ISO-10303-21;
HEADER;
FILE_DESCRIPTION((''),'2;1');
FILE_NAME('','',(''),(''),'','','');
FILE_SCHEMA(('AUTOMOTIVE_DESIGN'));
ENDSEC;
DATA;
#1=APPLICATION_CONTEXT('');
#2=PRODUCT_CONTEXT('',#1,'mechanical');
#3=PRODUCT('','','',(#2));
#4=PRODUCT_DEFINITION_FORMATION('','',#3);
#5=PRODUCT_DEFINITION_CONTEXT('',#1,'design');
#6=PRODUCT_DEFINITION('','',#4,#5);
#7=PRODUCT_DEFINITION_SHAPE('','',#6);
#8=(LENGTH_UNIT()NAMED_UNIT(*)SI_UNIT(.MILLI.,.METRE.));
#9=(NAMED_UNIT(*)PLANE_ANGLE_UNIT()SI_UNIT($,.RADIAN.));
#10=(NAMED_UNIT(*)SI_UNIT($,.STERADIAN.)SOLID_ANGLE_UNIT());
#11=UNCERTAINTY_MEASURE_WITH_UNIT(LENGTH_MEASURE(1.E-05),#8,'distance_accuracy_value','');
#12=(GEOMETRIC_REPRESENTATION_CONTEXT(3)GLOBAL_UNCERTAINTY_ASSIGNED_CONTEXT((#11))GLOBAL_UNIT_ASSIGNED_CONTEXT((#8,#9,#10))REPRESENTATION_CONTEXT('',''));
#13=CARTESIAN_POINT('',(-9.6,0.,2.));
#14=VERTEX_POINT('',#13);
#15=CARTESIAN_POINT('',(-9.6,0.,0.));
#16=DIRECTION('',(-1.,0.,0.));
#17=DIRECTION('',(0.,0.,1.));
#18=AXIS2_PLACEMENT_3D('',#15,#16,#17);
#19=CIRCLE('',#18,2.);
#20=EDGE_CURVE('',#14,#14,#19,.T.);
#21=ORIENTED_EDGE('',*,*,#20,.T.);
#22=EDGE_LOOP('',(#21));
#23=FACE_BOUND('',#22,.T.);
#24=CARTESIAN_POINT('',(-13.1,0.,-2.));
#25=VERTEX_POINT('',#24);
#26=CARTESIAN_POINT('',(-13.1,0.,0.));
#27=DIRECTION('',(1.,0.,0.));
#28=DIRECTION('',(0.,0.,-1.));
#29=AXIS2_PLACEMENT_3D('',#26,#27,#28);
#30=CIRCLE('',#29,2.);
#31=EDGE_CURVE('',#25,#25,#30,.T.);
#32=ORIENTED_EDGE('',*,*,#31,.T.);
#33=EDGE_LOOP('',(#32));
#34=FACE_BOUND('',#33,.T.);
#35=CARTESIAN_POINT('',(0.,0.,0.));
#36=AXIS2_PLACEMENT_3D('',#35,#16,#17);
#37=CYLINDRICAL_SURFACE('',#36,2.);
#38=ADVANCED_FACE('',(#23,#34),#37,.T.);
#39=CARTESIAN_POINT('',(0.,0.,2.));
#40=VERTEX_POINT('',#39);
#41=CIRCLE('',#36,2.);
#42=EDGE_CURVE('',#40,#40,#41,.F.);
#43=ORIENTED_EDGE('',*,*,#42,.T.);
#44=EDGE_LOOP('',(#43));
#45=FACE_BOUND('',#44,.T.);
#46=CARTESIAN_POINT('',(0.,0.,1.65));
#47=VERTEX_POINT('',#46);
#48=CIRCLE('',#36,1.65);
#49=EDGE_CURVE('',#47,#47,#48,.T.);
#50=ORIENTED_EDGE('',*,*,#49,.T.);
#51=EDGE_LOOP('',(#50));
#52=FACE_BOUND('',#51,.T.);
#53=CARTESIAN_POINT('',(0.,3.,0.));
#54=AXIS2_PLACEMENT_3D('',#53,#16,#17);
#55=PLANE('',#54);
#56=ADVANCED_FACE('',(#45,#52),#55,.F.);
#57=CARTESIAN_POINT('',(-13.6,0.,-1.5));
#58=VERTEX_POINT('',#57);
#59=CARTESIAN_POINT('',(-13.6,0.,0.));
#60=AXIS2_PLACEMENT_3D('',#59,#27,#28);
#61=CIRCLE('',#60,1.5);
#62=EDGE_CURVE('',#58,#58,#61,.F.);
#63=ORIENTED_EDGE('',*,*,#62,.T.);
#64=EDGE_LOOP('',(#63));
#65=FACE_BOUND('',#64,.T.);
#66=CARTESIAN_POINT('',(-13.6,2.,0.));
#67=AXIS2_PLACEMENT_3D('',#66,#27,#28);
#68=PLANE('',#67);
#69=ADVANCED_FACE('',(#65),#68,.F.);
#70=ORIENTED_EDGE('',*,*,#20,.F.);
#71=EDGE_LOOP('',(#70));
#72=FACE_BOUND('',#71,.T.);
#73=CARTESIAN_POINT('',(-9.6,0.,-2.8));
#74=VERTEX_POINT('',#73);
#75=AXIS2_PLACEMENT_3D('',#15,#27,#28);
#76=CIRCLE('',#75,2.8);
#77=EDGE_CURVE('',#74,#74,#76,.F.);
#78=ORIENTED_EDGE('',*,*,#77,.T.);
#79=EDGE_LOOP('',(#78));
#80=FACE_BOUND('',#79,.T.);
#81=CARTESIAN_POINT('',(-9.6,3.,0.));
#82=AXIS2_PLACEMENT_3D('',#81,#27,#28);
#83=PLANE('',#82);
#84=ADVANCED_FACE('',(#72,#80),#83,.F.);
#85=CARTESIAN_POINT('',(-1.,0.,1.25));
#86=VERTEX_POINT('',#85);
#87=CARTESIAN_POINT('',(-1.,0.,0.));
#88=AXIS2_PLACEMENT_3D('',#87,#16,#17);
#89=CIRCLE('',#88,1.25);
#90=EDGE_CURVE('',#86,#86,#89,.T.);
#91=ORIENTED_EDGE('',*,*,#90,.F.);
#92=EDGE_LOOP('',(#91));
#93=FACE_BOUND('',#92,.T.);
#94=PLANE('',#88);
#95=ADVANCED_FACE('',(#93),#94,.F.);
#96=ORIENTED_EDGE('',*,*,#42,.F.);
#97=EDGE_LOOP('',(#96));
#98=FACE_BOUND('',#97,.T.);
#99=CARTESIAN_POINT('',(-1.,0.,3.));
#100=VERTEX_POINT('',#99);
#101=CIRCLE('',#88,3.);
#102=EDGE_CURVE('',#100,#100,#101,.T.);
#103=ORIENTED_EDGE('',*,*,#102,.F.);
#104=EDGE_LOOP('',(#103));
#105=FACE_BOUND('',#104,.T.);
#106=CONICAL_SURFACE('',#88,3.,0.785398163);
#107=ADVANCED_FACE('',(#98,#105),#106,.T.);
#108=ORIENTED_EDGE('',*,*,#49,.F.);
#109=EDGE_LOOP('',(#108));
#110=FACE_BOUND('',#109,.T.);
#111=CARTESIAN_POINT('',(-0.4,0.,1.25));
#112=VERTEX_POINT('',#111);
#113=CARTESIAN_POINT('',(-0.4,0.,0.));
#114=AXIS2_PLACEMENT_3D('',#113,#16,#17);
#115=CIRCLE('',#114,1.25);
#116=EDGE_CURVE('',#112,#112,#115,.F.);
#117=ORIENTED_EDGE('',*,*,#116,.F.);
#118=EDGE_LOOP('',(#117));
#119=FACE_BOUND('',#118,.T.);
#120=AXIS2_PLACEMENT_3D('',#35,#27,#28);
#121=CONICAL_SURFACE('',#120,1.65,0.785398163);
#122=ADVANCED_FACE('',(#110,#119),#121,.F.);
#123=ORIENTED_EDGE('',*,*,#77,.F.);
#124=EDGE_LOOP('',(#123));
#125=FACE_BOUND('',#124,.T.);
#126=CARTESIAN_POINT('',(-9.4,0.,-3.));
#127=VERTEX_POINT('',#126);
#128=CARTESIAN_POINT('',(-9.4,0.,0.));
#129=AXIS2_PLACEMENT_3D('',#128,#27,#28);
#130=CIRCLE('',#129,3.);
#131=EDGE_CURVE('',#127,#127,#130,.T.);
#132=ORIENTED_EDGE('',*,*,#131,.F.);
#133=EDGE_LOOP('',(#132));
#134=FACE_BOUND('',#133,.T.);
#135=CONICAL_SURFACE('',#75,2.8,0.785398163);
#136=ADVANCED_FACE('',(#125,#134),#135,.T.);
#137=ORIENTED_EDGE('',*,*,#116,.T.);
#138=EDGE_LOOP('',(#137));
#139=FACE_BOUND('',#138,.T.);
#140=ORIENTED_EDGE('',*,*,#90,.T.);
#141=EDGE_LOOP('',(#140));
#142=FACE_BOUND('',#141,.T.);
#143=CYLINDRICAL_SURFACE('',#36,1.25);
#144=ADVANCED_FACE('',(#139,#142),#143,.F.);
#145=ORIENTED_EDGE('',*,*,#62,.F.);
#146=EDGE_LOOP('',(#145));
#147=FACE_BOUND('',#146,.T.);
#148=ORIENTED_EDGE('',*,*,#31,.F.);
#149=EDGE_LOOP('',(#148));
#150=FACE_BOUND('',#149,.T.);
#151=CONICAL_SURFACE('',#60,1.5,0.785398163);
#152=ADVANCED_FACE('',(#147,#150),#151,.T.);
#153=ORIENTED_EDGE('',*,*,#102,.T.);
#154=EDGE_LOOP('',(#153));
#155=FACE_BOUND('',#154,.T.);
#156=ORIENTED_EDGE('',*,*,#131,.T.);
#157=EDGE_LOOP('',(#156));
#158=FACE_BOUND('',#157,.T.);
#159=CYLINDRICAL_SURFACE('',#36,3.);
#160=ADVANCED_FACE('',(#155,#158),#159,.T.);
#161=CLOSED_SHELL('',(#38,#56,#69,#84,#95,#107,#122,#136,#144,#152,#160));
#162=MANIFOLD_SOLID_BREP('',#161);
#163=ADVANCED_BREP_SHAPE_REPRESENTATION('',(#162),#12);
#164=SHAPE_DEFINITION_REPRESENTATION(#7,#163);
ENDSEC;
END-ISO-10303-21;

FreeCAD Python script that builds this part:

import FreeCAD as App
import Part
import Sketcher
from FreeCAD import Vector


def edges_at(feature, points):
    """Names of the edges that pass closest to the given points."""
    edges = feature.Shape.Edges
    near = lambda p: min(range(len(edges)), key=lambda i: edges[i].distToShape(Part.Vertex(*p))[0])
    return sorted({f"Edge{near(p) + 1}" for p in points})


def add_polygon(sketch, points):
    """Adds a closed chain of lines whose ends are joined by coincident constraints."""
    first, n = sketch.GeometryCount, len(points)
    for a, b in zip(points, points[1:] + points[:1]):
        sketch.addGeometry(Part.LineSegment(App.Vector(*a, 0), App.Vector(*b, 0)), False)
    for i in range(n):
        sketch.addConstraint(Sketcher.Constraint("Coincident", first + i, 2, first + (i + 1) % n, 1))

doc = App.newDocument("Part")
body = doc.addObject("PartDesign::Body", "Body")

sketch1 = body.newObject("Sketcher::SketchObject", "Sketch")
sketch1.AttachmentSupport = (doc.getObject("XY_Plane"), [""])
sketch1.MapMode = "FlatFace"
add_polygon(sketch1, [(-1, 0), (-1, 1.2), (0, 1.2), (0, 3), (-9.6, 3), (-9.6, 2), (-13.6, 2), (-13.6, 0)])
sketch1.addConstraint(Sketcher.Constraint("Vertical", 0))
sketch1.addConstraint(Sketcher.Constraint("Horizontal", 1))
sketch1.addConstraint(Sketcher.Constraint("Vertical", 2))
sketch1.addConstraint(Sketcher.Constraint("Horizontal", 3))
sketch1.addConstraint(Sketcher.Constraint("Vertical", 4))
sketch1.addConstraint(Sketcher.Constraint("Horizontal", 5))
sketch1.addConstraint(Sketcher.Constraint("Vertical", 6))
sketch1.addConstraint(Sketcher.Constraint("Horizontal", 7))
sketch1.addConstraint(Sketcher.Constraint("PointOnObject", 1, 2, -2))
sketch1.addConstraint(Sketcher.Constraint("PointOnObject", 6, 2, -1))
sketch1.addConstraint(Sketcher.Constraint("Equal", 1, 4))
sketch1.addConstraint(Sketcher.Constraint("DistanceX", 1, 1, 1, 2, 1.0))
sketch1.addConstraint(Sketcher.Constraint("DistanceX", 5, 2, 5, 1, 4.0))
sketch1.addConstraint(Sketcher.Constraint("DistanceY", 6, 2, 6, 1, 2.0))
sketch1.addConstraint(Sketcher.Constraint("DistanceX", 3, 2, 3, 1, 9.6))
sketch1.addConstraint(Sketcher.Constraint("DistanceY", 0, 1, 0, 2, 1.25))
revolution = body.newObject("PartDesign::Revolution", "Revolution")
revolution.Profile = sketch1
revolution.ReferenceAxis = (sketch1, ["H_Axis"])
revolution.Angle = 360
doc.recompute()

chamfer = body.newObject("PartDesign::Chamfer", "Chamfer")
chamfer.Base = (revolution, edges_at(revolution, [(0, 0, -3)]))
chamfer.Size = 1
doc.recompute()

chamfer2 = body.newObject("PartDesign::Chamfer", "Chamfer001")
chamfer2.Base = (chamfer, edges_at(chamfer, [(0, 0, -1.25)]))
chamfer2.Size = 0.4
doc.recompute()

chamfer3 = body.newObject("PartDesign::Chamfer", "Chamfer002")
chamfer3.Base = (chamfer2, edges_at(chamfer2, [(-9.6, 0, -3)]))
chamfer3.Size = 0.2
doc.recompute()

chamfer4 = body.newObject("PartDesign::Chamfer", "Chamfer003")
chamfer4.Base = (chamfer3, edges_at(chamfer3, [(-13.6, 0, -2)]))
chamfer4.Size = 0.5

doc.recompute()
